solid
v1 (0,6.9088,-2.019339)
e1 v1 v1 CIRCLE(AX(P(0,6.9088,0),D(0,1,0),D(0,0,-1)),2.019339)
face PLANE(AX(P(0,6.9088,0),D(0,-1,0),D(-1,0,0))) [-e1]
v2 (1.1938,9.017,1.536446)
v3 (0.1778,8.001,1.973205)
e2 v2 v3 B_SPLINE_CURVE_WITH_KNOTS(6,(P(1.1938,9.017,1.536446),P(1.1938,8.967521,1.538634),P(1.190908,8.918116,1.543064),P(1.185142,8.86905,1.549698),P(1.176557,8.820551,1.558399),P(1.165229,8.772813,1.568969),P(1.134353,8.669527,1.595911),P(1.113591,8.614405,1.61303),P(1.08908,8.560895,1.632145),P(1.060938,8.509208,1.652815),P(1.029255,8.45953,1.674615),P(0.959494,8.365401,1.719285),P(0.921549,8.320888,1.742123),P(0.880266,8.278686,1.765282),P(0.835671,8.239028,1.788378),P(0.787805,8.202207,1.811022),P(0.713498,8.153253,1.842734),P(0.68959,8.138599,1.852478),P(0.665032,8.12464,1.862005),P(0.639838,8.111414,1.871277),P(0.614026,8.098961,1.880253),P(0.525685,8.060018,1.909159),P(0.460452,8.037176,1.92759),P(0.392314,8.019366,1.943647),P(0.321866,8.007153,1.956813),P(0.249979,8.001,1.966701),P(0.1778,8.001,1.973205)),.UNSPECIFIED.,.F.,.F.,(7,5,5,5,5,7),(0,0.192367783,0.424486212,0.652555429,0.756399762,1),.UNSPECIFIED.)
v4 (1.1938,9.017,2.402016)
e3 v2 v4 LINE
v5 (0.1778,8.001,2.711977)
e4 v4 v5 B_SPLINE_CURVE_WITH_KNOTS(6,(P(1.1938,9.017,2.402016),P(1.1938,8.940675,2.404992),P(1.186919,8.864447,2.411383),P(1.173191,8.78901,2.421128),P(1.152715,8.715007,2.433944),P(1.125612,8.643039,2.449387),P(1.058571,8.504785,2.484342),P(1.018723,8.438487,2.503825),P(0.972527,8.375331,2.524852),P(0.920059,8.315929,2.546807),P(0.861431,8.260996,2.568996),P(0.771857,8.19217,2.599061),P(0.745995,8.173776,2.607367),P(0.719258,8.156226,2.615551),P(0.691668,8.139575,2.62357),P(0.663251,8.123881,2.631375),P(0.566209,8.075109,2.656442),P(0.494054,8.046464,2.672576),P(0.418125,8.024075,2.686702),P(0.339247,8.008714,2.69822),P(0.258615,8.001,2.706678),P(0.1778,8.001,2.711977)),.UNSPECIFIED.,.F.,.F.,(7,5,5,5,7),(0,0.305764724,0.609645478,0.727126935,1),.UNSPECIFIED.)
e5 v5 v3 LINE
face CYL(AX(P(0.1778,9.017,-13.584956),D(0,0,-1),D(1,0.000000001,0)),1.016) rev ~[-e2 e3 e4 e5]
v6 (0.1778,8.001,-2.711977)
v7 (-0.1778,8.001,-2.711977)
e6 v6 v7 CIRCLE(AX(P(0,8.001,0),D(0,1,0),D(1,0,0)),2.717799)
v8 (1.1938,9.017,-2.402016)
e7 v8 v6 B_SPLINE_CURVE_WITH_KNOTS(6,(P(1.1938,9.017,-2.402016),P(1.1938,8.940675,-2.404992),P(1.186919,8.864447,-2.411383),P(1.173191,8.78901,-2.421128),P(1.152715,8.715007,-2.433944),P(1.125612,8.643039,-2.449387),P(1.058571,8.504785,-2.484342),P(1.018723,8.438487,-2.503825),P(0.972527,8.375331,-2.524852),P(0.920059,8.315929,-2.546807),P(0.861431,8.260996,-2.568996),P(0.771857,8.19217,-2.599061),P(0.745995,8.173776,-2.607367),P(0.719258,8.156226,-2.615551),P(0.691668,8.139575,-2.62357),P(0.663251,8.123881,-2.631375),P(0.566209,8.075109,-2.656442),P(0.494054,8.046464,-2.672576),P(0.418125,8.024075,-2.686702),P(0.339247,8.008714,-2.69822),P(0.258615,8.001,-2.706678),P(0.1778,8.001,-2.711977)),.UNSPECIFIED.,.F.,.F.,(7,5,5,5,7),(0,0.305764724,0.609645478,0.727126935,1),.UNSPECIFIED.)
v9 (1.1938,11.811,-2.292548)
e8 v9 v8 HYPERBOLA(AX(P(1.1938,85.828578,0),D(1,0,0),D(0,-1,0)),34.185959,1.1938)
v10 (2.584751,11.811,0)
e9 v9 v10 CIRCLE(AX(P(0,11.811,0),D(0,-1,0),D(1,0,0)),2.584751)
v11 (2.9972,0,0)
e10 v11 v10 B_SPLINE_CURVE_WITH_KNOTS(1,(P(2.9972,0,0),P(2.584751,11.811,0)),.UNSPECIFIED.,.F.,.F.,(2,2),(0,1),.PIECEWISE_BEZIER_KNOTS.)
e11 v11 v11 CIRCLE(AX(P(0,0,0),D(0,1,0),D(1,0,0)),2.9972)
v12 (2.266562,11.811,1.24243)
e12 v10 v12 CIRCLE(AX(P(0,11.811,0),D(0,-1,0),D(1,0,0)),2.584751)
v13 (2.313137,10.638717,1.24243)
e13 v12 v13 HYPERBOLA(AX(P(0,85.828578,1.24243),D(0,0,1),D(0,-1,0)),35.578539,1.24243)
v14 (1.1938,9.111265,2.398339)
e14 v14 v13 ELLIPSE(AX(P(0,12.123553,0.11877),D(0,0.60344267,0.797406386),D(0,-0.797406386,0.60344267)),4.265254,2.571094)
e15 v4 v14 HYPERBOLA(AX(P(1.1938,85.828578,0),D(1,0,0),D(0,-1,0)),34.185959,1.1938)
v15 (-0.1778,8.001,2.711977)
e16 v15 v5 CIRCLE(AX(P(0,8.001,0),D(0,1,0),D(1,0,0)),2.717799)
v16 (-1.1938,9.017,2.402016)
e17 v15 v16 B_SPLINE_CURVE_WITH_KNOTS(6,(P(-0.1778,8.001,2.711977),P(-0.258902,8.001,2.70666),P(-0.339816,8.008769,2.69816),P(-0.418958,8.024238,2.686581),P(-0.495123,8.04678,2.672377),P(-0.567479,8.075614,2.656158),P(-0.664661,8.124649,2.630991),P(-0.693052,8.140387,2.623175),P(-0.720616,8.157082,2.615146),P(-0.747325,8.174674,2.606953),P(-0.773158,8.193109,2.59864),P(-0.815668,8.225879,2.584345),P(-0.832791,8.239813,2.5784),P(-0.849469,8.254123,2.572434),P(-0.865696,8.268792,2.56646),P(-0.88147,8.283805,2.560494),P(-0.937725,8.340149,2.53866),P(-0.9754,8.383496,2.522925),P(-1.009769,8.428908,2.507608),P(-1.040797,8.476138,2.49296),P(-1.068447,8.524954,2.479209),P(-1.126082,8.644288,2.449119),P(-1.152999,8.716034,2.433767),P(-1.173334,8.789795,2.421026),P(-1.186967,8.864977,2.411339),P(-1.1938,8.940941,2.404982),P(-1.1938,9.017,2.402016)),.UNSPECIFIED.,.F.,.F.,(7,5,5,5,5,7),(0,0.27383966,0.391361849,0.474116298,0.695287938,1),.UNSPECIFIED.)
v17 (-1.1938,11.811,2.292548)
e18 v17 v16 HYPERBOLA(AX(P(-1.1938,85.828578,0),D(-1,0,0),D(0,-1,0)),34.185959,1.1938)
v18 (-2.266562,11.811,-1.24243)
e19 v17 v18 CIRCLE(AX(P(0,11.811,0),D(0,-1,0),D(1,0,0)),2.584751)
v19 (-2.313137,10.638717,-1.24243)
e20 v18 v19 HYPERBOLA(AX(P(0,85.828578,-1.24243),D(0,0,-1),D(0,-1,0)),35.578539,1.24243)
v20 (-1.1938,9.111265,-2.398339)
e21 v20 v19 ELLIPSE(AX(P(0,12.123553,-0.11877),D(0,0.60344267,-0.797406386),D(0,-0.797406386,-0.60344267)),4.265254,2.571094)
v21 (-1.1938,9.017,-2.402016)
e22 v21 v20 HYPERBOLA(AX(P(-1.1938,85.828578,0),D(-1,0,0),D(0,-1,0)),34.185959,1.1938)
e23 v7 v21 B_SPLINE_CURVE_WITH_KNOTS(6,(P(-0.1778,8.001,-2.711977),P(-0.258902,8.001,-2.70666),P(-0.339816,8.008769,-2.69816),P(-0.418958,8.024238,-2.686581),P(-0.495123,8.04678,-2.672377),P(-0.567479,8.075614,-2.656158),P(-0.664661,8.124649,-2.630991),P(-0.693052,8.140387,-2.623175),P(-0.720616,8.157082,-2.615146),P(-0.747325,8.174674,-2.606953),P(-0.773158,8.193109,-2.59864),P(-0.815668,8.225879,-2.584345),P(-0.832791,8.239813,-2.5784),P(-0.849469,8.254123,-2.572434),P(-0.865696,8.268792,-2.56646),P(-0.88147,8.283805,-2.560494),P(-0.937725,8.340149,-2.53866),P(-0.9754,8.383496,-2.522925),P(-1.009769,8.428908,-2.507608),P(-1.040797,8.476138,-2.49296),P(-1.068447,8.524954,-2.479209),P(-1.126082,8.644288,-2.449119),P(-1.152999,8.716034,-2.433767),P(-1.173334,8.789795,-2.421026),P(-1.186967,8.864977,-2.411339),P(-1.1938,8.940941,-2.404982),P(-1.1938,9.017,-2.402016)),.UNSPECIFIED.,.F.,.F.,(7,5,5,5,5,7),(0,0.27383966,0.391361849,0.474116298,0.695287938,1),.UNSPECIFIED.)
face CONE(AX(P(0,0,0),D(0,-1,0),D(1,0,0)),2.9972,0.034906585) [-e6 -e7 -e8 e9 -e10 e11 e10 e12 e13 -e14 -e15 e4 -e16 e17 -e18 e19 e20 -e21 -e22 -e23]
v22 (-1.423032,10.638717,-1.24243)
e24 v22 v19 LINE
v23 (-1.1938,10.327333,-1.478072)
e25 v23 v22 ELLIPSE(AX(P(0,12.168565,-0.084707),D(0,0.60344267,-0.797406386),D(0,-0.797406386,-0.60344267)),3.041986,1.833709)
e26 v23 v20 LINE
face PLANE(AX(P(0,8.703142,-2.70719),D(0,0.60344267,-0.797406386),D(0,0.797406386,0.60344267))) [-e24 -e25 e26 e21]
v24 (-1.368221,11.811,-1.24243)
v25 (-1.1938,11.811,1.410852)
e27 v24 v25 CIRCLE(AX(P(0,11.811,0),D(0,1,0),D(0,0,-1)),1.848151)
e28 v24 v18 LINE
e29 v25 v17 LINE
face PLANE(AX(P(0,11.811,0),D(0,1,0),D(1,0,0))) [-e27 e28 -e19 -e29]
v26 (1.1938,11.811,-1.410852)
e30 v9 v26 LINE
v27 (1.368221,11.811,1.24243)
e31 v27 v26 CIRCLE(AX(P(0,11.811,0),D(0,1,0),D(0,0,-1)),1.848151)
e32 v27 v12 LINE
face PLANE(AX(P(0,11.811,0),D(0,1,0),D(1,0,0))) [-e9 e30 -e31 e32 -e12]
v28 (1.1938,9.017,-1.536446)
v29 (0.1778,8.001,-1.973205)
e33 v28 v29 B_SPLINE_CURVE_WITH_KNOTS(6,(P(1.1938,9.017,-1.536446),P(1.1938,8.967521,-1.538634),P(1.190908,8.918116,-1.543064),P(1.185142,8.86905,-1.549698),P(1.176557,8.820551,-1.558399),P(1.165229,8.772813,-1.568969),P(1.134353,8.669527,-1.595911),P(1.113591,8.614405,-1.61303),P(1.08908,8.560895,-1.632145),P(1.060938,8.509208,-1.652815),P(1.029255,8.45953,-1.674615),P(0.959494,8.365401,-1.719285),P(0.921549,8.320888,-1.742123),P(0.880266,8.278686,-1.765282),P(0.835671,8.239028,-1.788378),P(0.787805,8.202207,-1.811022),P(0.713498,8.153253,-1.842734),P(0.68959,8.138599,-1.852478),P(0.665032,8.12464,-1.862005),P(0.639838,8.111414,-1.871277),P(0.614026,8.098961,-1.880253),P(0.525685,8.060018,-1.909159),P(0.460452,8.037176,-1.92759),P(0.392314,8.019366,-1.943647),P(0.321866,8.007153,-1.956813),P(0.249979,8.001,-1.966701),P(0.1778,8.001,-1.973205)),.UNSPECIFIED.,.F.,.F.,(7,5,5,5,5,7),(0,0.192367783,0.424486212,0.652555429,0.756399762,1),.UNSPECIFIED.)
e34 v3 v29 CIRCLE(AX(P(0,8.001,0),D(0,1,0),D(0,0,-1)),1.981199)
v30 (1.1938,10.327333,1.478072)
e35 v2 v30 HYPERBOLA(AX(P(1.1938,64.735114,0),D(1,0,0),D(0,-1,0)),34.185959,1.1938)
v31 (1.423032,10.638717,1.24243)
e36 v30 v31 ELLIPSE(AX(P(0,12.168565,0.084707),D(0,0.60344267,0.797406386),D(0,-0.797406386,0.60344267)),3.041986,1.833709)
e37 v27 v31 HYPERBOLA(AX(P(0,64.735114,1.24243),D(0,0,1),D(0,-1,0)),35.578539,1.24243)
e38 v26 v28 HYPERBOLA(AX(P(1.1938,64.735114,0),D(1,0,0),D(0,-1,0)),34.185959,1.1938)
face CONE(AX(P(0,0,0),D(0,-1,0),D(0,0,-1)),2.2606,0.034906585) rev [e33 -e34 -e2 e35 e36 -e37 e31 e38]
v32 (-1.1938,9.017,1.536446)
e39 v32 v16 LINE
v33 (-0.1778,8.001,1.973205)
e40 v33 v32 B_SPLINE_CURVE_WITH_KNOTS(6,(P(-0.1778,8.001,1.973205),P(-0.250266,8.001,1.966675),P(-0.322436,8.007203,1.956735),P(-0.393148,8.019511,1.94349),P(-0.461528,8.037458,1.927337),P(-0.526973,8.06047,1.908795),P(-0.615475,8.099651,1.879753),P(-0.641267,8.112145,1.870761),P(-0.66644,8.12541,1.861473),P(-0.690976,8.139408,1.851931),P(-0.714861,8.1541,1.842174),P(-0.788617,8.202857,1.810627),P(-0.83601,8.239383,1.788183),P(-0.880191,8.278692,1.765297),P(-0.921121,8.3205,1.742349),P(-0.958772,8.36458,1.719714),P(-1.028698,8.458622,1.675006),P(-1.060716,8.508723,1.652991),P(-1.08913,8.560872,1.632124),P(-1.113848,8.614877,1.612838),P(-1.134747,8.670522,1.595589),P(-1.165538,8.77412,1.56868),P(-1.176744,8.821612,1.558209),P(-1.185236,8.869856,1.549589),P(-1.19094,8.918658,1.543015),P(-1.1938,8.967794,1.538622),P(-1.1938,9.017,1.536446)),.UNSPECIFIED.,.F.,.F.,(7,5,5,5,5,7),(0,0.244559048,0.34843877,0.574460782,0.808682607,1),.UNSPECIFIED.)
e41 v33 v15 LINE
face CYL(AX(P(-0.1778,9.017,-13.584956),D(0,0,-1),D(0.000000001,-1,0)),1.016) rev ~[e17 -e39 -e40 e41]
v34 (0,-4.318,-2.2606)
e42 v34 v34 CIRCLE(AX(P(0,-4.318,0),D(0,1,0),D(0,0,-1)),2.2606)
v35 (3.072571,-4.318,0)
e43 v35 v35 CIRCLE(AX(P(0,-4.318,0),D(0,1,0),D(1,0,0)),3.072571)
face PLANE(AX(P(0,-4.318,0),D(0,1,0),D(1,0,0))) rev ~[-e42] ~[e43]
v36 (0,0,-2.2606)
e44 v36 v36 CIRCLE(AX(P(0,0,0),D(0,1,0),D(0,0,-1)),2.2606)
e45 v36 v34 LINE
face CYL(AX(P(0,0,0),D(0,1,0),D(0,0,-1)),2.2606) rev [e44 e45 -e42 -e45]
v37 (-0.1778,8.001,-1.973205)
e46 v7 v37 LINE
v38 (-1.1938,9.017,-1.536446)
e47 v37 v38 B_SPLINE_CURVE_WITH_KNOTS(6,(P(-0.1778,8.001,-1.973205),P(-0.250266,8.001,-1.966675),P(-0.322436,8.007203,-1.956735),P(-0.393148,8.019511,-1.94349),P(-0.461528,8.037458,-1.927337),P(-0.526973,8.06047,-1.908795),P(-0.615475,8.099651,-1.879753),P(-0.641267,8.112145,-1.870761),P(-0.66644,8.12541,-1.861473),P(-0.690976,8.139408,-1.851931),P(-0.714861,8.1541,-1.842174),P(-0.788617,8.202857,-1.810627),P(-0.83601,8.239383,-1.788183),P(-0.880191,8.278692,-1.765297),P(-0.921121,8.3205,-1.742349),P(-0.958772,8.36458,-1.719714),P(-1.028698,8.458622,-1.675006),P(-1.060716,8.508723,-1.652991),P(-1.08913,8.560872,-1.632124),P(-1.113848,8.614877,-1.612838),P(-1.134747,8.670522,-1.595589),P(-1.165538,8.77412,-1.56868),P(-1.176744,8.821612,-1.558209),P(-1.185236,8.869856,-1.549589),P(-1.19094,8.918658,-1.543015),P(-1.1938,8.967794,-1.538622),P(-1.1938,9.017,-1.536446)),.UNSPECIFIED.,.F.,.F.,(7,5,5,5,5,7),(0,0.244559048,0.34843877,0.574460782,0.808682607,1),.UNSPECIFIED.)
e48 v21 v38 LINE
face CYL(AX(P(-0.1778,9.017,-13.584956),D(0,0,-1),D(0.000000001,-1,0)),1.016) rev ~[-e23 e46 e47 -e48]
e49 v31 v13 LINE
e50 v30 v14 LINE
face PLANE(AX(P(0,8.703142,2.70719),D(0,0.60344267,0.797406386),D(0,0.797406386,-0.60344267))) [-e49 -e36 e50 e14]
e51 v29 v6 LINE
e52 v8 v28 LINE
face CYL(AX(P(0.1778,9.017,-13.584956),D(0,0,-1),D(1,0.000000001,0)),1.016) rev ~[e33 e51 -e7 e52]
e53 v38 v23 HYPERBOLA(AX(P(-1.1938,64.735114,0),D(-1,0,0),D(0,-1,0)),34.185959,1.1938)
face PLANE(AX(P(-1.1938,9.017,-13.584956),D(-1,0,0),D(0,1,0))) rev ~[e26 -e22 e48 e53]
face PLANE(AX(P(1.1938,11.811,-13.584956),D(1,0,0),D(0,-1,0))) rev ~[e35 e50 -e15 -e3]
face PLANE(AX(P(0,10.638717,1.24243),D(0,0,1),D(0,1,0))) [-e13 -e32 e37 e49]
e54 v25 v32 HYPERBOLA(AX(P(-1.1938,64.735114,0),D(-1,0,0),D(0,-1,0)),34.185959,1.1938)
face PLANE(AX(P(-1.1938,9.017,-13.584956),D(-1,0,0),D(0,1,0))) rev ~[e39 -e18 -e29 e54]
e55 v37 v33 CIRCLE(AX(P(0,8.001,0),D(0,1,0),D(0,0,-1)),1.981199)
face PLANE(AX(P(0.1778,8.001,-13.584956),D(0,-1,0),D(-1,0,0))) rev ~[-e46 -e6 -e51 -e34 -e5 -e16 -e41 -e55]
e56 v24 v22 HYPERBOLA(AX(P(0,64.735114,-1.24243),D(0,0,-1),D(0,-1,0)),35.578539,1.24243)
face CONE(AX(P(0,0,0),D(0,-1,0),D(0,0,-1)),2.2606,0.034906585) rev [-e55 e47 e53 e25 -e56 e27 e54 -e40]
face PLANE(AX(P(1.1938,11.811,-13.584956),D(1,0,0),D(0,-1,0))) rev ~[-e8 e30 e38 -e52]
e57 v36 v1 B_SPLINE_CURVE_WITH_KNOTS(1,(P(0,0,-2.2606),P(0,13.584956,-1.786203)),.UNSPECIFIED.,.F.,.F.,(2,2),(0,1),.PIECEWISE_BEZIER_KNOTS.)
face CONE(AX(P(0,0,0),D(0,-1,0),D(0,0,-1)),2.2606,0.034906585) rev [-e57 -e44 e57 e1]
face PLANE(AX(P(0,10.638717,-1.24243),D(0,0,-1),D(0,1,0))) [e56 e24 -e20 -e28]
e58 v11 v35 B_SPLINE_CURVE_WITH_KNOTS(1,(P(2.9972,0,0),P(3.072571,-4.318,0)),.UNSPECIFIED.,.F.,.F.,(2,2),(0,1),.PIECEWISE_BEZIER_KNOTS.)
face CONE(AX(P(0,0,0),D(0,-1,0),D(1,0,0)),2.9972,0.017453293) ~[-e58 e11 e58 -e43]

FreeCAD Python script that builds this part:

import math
import FreeCAD as App
import Part
import Sketcher
from FreeCAD import Vector
Q = App.Units.Quantity


def add_polygon(sketch, points):
    """Adds a closed chain of lines whose ends are joined by coincident constraints."""
    first, n = sketch.GeometryCount, len(points)
    for a, b in zip(points, points[1:] + points[:1]):
        sketch.addGeometry(Part.LineSegment(App.Vector(*a, 0), App.Vector(*b, 0)), False)
    for i in range(n):
        sketch.addConstraint(Sketcher.Constraint("Coincident", first + i, 2, first + (i + 1) % n, 1))

doc = App.newDocument("Part")
body = doc.addObject("PartDesign::Body", "Body")

sketch1 = body.newObject("Sketcher::SketchObject", "Sketch")
sketch1.AttachmentSupport = (doc.getObject("XZ_Plane"), [""])
sketch1.MapMode = "FlatFace"
sketch1.addGeometry(Part.Circle(Vector(0, 0, 0), Vector(0, 0, 1), 2.9972), False)
sketch1.addConstraint([
    Sketcher.Constraint("Coincident", 0, 3, -1, 1),
    Sketcher.Constraint("Diameter", 0, Q("0.236 in")),
])
pad1 = body.newObject("PartDesign::Pad", "Pad")
pad1.Profile = sketch1
pad1.Length = Q("0.465 in")
pad1.Reversed = True
pad1.TaperAngle = -2

sketch2 = body.newObject("Sketcher::SketchObject", "Sketch001")
sketch2.AttachmentSupport = (doc.getObject("XZ_Plane"), [""])
sketch2.MapMode = "FlatFace"
sketch2.addGeometry(Part.Circle(Vector(0, 0, 0), Vector(0, 0, 1), 2.9972), False)
sketch2.addConstraint([
    Sketcher.Constraint("Coincident", 0, 3, -1, 1),
    Sketcher.Constraint("Diameter", 0, Q("0.236 in")),
])
pad2 = body.newObject("PartDesign::Pad", "Pad001")
pad2.Profile = sketch2
pad2.Length = Q("0.17 in")
pad2.TaperAngle = 1

sketch3 = body.newObject("Sketcher::SketchObject", "Sketch002")
sketch3.AttachmentSupport = (doc.getObject("XZ_Plane"), [""])
sketch3.MapMode = "FlatFace"
sketch3.addGeometry(Part.Circle(Vector(0, 0, 0), Vector(0, 0, 1), 2.2606), False)
sketch3.addConstraint([
    Sketcher.Constraint("Coincident", 0, 3, -1, 1),
    Sketcher.Constraint("Diameter", 0, Q("0.178 in")),
])
pocket1 = body.newObject("PartDesign::Pocket", "Pocket")
pocket1.Profile = sketch3
pocket1.Length = 13.584956
pocket1.TaperAngle = -2

sketch4 = body.newObject("Sketcher::SketchObject", "Sketch003")
sketch4.AttachmentSupport = (doc.getObject("XZ_Plane"), [""])
sketch4.MapMode = "FlatFace"
sketch4.addGeometry(Part.Circle(Vector(0, 0, 0), Vector(0, 0, 1), 2.2606), False)
sketch4.addConstraint([
    Sketcher.Constraint("Coincident", 0, 3, -1, 1),
    Sketcher.Constraint("Diameter", 0, Q("0.178 in")),
])
pocket2 = body.newObject("PartDesign::Pocket", "Pocket001")
pocket2.Profile = sketch4
pocket2.Length = 13.584956
pocket2.Reversed = True

sketch5 = body.newObject("Sketcher::SketchObject", "Sketch004")
sketch5.AttachmentSupport = (doc.getObject("XY_Plane"), [""])
sketch5.MapMode = "FlatFace"
sketch5.addGeometry([
    Part.LineSegment(Vector(1.1938, 11.811, 0), Vector(-1.1938, 11.811, 0)),
    Part.LineSegment(Vector(-1.1938, 11.811, 0), Vector(-1.1938, 9.017, 0)),
    Part.ArcOfCircle(Part.Circle(Vector(-0.1778, 9.017, 0), Vector(0, 0, 1), 1.016), math.radians(180), math.radians(270)),
    Part.LineSegment(Vector(-0.1778, 8.001, 0), Vector(0.1778, 8.001, 0)),
    Part.ArcOfCircle(Part.Circle(Vector(0.1778, 9.017, 0), Vector(0, 0, 1), 1.016), math.radians(-90), math.radians(0)),
    Part.LineSegment(Vector(1.1938, 9.017, 0), Vector(1.1938, 11.811, 0)),
], False)
sketch5.addConstraint([
    Sketcher.Constraint("Coincident", 0, 2, 1, 1),
    Sketcher.Constraint("Tangent", 1, 2, 2, 1),
    Sketcher.Constraint("Tangent", 2, 2, 3, 1),
    Sketcher.Constraint("Tangent", 3, 2, 4, 1),
    Sketcher.Constraint("Tangent", 4, 2, 5, 1),
    Sketcher.Constraint("Coincident", 5, 2, 0, 1),
    Sketcher.Constraint("Horizontal", 0),
    Sketcher.Constraint("Vertical", 1),
    Sketcher.Constraint("Horizontal", 3),
    Sketcher.Constraint("Vertical", 5),
    Sketcher.Constraint("Equal", 2, 4),
    Sketcher.Constraint("Radius", 2, Q("0.04 in")),
    Sketcher.Constraint("DistanceY", 1, 2, 1, 1, Q("0.11 in")),
    Sketcher.Constraint("DistanceX", 0, 2, 0, 1, Q("0.094 in")),
    Sketcher.Constraint("DistanceX", 2, 3, -1, 1, Q("0.007 in")),
    Sketcher.Constraint("DistanceY", -1, 1, 2, 3, Q("0.355 in")),
])
pocket3 = body.newObject("PartDesign::Pocket", "Pocket002")
pocket3.Profile = sketch5
pocket3.Type = "ThroughAll"
pocket3.Midplane = True

sketch6 = body.newObject("Sketcher::SketchObject", "Sketch005")
sketch6.AttachmentSupport = (doc.getObject("YZ_Plane"), [""])
sketch6.MapMode = "FlatFace"
add_polygon(sketch6, [(11.811, -2.70719), (11.811, -1.24243), (10.638717, -1.24243), (8.703142, -2.70719)])
sketch6.addConstraint([
    Sketcher.Constraint("Vertical", 0),
    Sketcher.Constraint("Horizontal", 1),
    Sketcher.Constraint("Horizontal", 3),
    Sketcher.Constraint("DistanceX", -1, 1, 0, 2, Q("0.465 in")),
    Sketcher.Constraint("DistanceX", 3, 1, 3, 2, 3.107858),
    Sketcher.Constraint("DistanceY", 0, 1, 0, 2, 1.46476),
    Sketcher.Constraint("Distance", 2, 2.427338),
    Sketcher.Constraint("DistanceY", 0, 2, -1, 1, 1.24243),
])
pocket4 = body.newObject("PartDesign::Pocket", "Pocket003")
pocket4.Profile = sketch6
pocket4.Type = "ThroughAll"
doc.recompute()

polarpattern = body.newObject("PartDesign::PolarPattern", "PolarPattern")
polarpattern.Originals = [pocket4]
polarpattern.Axis = (doc.getObject("Y_Axis"), [""])
polarpattern.Angle = 360
polarpattern.Occurrences = 2
body.Tip = polarpattern

sketch7 = body.newObject("Sketcher::SketchObject", "Sketch006")
sketch7.AttachmentSupport = (doc.getObject("XZ_Plane"), [""])
sketch7.MapMode = "FlatFace"
sketch7.AttachmentOffset = App.Placement(Vector(0, 0, -0.315 * 25.4), App.Rotation())
sketch7.addGeometry(Part.Circle(Vector(0, 0, 0), Vector(0, 0, 1), 2.032), False)
sketch7.addConstraint([
    Sketcher.Constraint("Coincident", 0, 3, -1, 1),
    Sketcher.Constraint("Diameter", 0, Q("0.16 in")),
])
pad3 = body.newObject("PartDesign::Pad", "Pad002")
pad3.Profile = sketch7
pad3.Length = Q("0.043 in")

doc.recompute()
